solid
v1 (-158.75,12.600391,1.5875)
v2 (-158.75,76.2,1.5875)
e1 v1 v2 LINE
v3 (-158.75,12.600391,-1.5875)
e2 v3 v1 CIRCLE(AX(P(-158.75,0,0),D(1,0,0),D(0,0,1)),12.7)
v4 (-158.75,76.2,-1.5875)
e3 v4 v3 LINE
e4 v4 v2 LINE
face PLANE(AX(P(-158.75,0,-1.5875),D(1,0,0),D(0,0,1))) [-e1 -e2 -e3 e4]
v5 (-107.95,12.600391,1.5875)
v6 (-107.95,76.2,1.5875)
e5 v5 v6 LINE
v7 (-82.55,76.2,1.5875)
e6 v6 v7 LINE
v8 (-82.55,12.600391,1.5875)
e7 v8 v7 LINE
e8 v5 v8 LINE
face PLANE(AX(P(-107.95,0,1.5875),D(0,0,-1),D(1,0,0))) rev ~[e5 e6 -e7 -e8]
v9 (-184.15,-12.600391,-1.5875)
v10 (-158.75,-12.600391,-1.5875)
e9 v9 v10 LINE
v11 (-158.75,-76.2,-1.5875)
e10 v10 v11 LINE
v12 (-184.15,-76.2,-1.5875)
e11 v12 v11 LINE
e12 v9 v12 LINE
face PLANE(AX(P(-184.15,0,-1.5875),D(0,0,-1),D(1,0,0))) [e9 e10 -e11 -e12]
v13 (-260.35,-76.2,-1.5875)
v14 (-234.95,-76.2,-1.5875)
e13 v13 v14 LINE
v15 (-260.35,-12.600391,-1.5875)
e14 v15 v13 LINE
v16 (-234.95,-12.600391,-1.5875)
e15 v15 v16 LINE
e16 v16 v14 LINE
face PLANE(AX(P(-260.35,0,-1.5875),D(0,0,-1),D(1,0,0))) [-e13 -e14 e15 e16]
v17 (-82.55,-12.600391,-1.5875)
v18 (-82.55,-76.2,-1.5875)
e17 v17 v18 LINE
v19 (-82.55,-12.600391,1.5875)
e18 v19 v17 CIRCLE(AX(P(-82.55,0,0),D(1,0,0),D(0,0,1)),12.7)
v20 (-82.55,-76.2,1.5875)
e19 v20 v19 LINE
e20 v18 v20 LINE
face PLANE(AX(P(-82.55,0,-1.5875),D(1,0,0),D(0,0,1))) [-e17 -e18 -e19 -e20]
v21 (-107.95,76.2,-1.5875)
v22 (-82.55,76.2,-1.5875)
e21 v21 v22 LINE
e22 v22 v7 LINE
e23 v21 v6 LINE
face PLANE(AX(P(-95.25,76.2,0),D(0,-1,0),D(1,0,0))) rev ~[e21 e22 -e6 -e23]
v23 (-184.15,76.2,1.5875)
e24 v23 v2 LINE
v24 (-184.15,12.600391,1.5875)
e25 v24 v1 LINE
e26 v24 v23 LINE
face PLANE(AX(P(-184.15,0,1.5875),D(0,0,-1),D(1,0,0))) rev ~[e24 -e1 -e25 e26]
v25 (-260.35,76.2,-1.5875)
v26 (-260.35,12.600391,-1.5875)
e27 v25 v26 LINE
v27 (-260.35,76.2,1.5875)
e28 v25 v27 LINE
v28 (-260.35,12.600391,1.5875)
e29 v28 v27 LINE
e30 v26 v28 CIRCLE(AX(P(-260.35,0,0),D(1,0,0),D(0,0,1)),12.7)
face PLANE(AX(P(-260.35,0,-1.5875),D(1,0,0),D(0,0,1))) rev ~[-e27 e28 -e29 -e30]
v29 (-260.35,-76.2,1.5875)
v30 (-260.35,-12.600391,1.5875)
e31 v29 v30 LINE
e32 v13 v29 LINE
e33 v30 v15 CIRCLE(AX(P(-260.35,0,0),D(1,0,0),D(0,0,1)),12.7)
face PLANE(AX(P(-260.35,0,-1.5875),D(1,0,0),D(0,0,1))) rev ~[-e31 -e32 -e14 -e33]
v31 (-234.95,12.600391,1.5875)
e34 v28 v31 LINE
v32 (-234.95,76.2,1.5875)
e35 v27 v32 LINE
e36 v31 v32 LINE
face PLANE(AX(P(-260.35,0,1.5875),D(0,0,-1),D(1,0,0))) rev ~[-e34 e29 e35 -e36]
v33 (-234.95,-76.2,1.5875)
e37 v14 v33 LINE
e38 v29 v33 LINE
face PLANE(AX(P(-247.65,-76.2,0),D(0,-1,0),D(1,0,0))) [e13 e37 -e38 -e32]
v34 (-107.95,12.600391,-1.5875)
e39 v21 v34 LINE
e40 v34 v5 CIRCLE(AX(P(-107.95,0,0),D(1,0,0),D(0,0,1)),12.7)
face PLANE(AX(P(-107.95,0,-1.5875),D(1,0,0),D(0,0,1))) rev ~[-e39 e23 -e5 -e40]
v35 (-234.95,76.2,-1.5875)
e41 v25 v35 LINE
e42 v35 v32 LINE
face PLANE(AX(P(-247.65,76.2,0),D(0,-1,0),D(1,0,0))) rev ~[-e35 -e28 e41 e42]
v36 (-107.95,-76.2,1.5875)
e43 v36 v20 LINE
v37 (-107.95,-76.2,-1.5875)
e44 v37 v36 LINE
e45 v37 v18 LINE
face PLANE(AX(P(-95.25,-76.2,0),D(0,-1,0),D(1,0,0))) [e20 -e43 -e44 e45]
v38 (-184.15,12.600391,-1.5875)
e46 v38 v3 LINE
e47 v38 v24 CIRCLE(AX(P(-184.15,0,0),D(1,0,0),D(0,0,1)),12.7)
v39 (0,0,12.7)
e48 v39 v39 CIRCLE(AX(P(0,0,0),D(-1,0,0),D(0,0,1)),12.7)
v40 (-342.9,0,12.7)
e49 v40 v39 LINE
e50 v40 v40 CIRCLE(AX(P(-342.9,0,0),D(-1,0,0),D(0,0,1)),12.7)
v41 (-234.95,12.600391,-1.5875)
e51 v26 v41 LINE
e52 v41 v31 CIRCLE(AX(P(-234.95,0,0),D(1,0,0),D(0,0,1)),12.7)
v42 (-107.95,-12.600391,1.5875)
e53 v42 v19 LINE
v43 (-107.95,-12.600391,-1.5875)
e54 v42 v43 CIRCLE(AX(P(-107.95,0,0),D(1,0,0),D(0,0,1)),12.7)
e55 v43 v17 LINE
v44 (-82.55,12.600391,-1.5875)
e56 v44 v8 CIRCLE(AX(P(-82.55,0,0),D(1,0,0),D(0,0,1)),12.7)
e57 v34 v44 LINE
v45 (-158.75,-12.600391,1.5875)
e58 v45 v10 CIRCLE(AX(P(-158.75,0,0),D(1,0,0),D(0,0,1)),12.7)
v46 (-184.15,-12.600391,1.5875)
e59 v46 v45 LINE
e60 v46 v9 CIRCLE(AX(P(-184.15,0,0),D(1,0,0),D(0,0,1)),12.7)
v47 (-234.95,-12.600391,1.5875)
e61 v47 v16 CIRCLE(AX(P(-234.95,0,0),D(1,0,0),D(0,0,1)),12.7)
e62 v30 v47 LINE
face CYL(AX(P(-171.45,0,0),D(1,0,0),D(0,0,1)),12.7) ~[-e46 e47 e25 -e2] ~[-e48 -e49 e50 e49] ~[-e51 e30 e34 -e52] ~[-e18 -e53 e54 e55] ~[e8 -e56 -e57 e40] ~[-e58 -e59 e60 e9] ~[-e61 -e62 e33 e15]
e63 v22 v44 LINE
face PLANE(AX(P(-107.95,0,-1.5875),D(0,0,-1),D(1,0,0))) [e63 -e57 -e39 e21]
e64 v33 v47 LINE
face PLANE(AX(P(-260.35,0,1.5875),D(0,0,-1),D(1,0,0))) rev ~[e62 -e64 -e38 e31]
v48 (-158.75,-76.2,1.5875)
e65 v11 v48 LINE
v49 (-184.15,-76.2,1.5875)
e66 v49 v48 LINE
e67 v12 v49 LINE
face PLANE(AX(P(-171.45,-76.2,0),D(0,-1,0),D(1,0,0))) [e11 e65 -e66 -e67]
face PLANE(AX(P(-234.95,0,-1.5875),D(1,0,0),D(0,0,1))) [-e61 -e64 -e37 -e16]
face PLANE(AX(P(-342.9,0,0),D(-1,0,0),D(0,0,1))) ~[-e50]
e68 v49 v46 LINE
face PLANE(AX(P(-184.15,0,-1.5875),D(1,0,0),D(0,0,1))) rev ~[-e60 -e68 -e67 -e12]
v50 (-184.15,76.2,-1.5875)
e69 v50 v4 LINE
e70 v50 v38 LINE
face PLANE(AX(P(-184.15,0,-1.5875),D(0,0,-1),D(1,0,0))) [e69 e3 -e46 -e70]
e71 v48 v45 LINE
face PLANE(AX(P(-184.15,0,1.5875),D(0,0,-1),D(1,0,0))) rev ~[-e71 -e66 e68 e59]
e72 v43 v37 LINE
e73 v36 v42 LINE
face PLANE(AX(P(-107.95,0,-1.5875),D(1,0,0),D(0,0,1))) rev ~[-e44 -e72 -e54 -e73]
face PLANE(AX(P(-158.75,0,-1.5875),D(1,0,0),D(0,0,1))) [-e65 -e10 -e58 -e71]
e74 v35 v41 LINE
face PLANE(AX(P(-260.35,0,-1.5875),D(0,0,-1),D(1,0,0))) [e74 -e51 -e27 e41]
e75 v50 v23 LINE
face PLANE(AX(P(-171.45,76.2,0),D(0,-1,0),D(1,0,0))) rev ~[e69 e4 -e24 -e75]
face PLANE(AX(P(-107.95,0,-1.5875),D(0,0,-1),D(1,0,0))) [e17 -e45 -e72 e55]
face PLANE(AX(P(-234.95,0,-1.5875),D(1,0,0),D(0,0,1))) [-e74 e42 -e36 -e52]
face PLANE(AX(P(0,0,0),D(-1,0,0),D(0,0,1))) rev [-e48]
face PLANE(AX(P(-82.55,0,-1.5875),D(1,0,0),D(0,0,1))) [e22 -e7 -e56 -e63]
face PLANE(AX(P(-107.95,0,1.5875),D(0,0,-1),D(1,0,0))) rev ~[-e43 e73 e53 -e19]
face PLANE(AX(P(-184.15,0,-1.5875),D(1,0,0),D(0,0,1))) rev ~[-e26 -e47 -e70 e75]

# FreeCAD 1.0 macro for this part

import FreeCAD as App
import Part
import Sketcher
from FreeCAD import Vector
Q = App.Units.Quantity

doc = App.newDocument("Part")
body = doc.addObject("PartDesign::Body", "Body")

sketch1 = body.newObject("Sketcher::SketchObject", "Sketch")
sketch1.AttachmentSupport = (doc.getObject("XZ_Plane"), [""])
sketch1.MapMode = "FlatFace"
sketch1.addGeometry(Part.LineSegment(Vector(-260.4, 1.6, 0), Vector(-260.4, -1.6, 0)), False)
sketch1.addGeometry(Part.LineSegment(Vector(-260.4, -1.6, 0), Vector(-234.9, -1.6, 0)), False)
sketch1.addGeometry(Part.LineSegment(Vector(-234.9, -1.6, 0), Vector(-234.9, 1.6, 0)), False)
sketch1.addGeometry(Part.LineSegment(Vector(-234.9, 1.6, 0), Vector(-260.4, 1.6, 0)), False)
sketch1.addConstraint(Sketcher.Constraint("Coincident", 0, 2, 1, 1))
sketch1.addConstraint(Sketcher.Constraint("Coincident", 1, 2, 2, 1))
sketch1.addConstraint(Sketcher.Constraint("Coincident", 2, 2, 3, 1))
sketch1.addConstraint(Sketcher.Constraint("Coincident", 3, 2, 0, 1))
sketch1.addConstraint(Sketcher.Constraint("Vertical", 0))
sketch1.addConstraint(Sketcher.Constraint("Horizontal", 1))
sketch1.addConstraint(Sketcher.Constraint("Vertical", 2))
sketch1.addConstraint(Sketcher.Constraint("Horizontal", 3))
sketch1.addConstraint(Sketcher.Constraint("DistanceX", 1, 1, 1, 2, Q("1 in")))
sketch1.addConstraint(Sketcher.Constraint("DistanceY", 0, 2, 0, 1, Q("0.125 in")))
sketch1.addConstraint(Sketcher.Constraint("DistanceX", 0, 2, -1, 1, Q("10.25 in")))
sketch1.addConstraint(Sketcher.Constraint("DistanceY", 0, 2, -1, 1, Q("0.0625 in")))
pad1 = body.newObject("PartDesign::Pad", "Pad")
pad1.Profile = sketch1
pad1.Length = Q("6 in")
pad1.Midplane = True
body2 = doc.addObject("PartDesign::Body", "Body001")

sketch2 = body2.newObject("Sketcher::SketchObject", "Sketch001")
sketch2.AttachmentSupport = (doc.getObject("XZ_Plane001"), [""])
sketch2.MapMode = "FlatFace"
sketch2.addGeometry(Part.LineSegment(Vector(-184.2, 1.6, 0), Vector(-184.2, -1.6, 0)), False)
sketch2.addGeometry(Part.LineSegment(Vector(-184.2, -1.6, 0), Vector(-158.8, -1.6, 0)), False)
sketch2.addGeometry(Part.LineSegment(Vector(-158.8, -1.6, 0), Vector(-158.8, 1.6, 0)), False)
sketch2.addGeometry(Part.LineSegment(Vector(-158.8, 1.6, 0), Vector(-184.2, 1.6, 0)), False)
sketch2.addConstraint(Sketcher.Constraint("Coincident", 0, 2, 1, 1))
sketch2.addConstraint(Sketcher.Constraint("Coincident", 1, 2, 2, 1))
sketch2.addConstraint(Sketcher.Constraint("Coincident", 2, 2, 3, 1))
sketch2.addConstraint(Sketcher.Constraint("Coincident", 3, 2, 0, 1))
sketch2.addConstraint(Sketcher.Constraint("Vertical", 0))
sketch2.addConstraint(Sketcher.Constraint("Horizontal", 1))
sketch2.addConstraint(Sketcher.Constraint("Vertical", 2))
sketch2.addConstraint(Sketcher.Constraint("Horizontal", 3))
sketch2.addConstraint(Sketcher.Constraint("DistanceX", 1, 1, 1, 2, Q("1 in")))
sketch2.addConstraint(Sketcher.Constraint("DistanceY", 0, 2, 0, 1, Q("0.125 in")))
sketch2.addConstraint(Sketcher.Constraint("DistanceX", 0, 2, -1, 1, Q("7.25 in")))
sketch2.addConstraint(Sketcher.Constraint("DistanceY", 0, 2, -1, 1, Q("0.0625 in")))
pad2 = body2.newObject("PartDesign::Pad", "Pad001")
pad2.Profile = sketch2
pad2.Length = Q("6 in")
pad2.Midplane = True
body3 = doc.addObject("PartDesign::Body", "Body002")

sketch3 = body3.newObject("Sketcher::SketchObject", "Sketch002")
sketch3.AttachmentSupport = (doc.getObject("XZ_Plane002"), [""])
sketch3.MapMode = "FlatFace"
sketch3.addGeometry(Part.LineSegment(Vector(-108, 1.6, 0), Vector(-108, -1.6, 0)), False)
sketch3.addGeometry(Part.LineSegment(Vector(-108, -1.6, 0), Vector(-82.5, -1.6, 0)), False)
sketch3.addGeometry(Part.LineSegment(Vector(-82.5, -1.6, 0), Vector(-82.5, 1.6, 0)), False)
sketch3.addGeometry(Part.LineSegment(Vector(-82.5, 1.6, 0), Vector(-108, 1.6, 0)), False)
sketch3.addConstraint(Sketcher.Constraint("Coincident", 0, 2, 1, 1))
sketch3.addConstraint(Sketcher.Constraint("Coincident", 1, 2, 2, 1))
sketch3.addConstraint(Sketcher.Constraint("Coincident", 2, 2, 3, 1))
sketch3.addConstraint(Sketcher.Constraint("Coincident", 3, 2, 0, 1))
sketch3.addConstraint(Sketcher.Constraint("Vertical", 0))
sketch3.addConstraint(Sketcher.Constraint("Horizontal", 1))
sketch3.addConstraint(Sketcher.Constraint("Vertical", 2))
sketch3.addConstraint(Sketcher.Constraint("Horizontal", 3))
sketch3.addConstraint(Sketcher.Constraint("DistanceX", 1, 1, 1, 2, Q("1 in")))
sketch3.addConstraint(Sketcher.Constraint("DistanceY", 0, 2, 0, 1, Q("0.125 in")))
sketch3.addConstraint(Sketcher.Constraint("DistanceX", 0, 2, -1, 1, Q("4.25 in")))
sketch3.addConstraint(Sketcher.Constraint("DistanceY", 0, 2, -1, 1, Q("0.0625 in")))
pad3 = body3.newObject("PartDesign::Pad", "Pad002")
pad3.Profile = sketch3
pad3.Length = Q("6 in")
pad3.Midplane = True
body.AllowCompound = True
doc.recompute()

boolean = body.newObject("PartDesign::Boolean", "Boolean")
boolean.Type = "Fuse"
boolean.addObjects([body2])
doc.recompute()

boolean2 = body.newObject("PartDesign::Boolean", "Boolean001")
boolean2.Type = "Fuse"
boolean2.addObjects([body3])

sketch4 = body.newObject("Sketcher::SketchObject", "Sketch003")
sketch4.AttachmentSupport = (doc.getObject("XZ_Plane"), [""])
sketch4.MapMode = "FlatFace"
sketch4.addGeometry(Part.LineSegment(Vector(-343, 13, 0), Vector(-343, 0, 0)), False)
sketch4.addGeometry(Part.LineSegment(Vector(-343, 0, 0), Vector(0, 0, 0)), False)
sketch4.addGeometry(Part.LineSegment(Vector(0, 0, 0), Vector(0, 13, 0)), False)
sketch4.addGeometry(Part.LineSegment(Vector(0, 13, 0), Vector(-343, 13, 0)), False)
sketch4.addConstraint(Sketcher.Constraint("Coincident", 0, 2, 1, 1))
sketch4.addConstraint(Sketcher.Constraint("Coincident", 1, 2, 2, 1))
sketch4.addConstraint(Sketcher.Constraint("Coincident", 2, 2, 3, 1))
sketch4.addConstraint(Sketcher.Constraint("Coincident", 3, 2, 0, 1))
sketch4.addConstraint(Sketcher.Constraint("Vertical", 0))
sketch4.addConstraint(Sketcher.Constraint("Horizontal", 1))
sketch4.addConstraint(Sketcher.Constraint("Vertical", 2))
sketch4.addConstraint(Sketcher.Constraint("Horizontal", 3))
sketch4.addConstraint(Sketcher.Constraint("Coincident", 1, 2, -1, 1))
sketch4.addConstraint(Sketcher.Constraint("DistanceX", 1, 1, 1, 2, Q("13.5 in")))
sketch4.addConstraint(Sketcher.Constraint("DistanceY", 0, 2, 0, 1, Q("0.5 in")))
revolution = body.newObject("PartDesign::Revolution", "Revolution")
revolution.Profile = sketch4
revolution.ReferenceAxis = (sketch4, ["H_Axis"])
revolution.Angle = 360

doc.recompute()
